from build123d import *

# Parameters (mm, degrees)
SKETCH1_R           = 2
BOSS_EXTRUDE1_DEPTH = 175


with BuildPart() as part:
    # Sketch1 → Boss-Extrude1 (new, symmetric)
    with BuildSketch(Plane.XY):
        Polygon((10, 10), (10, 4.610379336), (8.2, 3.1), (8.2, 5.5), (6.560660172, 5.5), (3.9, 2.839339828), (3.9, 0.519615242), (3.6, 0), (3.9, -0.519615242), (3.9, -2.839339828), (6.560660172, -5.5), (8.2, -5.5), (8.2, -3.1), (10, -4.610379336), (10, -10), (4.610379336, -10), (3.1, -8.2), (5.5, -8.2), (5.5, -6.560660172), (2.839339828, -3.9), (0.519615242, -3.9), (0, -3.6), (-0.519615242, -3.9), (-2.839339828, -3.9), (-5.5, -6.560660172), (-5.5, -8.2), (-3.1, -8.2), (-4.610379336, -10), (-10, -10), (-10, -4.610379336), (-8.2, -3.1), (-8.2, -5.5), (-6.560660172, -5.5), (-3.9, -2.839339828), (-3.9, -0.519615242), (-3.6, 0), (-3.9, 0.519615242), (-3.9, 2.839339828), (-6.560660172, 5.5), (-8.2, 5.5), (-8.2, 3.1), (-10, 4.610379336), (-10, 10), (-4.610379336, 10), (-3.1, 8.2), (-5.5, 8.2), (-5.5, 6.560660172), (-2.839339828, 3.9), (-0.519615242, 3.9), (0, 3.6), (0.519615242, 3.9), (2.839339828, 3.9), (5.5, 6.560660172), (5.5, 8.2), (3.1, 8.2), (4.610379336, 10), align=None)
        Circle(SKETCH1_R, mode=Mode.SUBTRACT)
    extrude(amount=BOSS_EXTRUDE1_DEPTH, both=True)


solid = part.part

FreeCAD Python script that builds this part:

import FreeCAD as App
import Part
import Sketcher
from FreeCAD import Vector
Q = App.Units.Quantity

doc = App.newDocument("Part")
body = doc.addObject("PartDesign::Body", "Body")

# Sketch on XY plane
sketch1 = doc.addObject("Sketcher::SketchObject", "Sketch")
body.addObject(sketch1)
sketch1.AttachmentSupport = (doc.XY_Plane, [""])
sketch1.MapMode = "FlatFace"
sketch1.addGeometry(Part.LineSegment(Vector(10, 4.6, 0), Vector(10, 10, 0)), False)
sketch1.addGeometry(Part.LineSegment(Vector(10, 10, 0), Vector(4.6, 10, 0)), False)
sketch1.addGeometry(Part.LineSegment(Vector(4.6, 10, 0), Vector(3.1, 8.2, 0)), False)
sketch1.addGeometry(Part.LineSegment(Vector(3.1, 8.2, 0), Vector(5.5, 8.2, 0)), False)
sketch1.addGeometry(Part.LineSegment(Vector(5.5, 8.2, 0), Vector(5.5, 6.6, 0)), False)
sketch1.addGeometry(Part.LineSegment(Vector(5.5, 6.6, 0), Vector(2.8, 3.9, 0)), False)
sketch1.addGeometry(Part.LineSegment(Vector(2.8, 3.9, 0), Vector(0.5, 3.9, 0)), False)
sketch1.addGeometry(Part.LineSegment(Vector(0.5, 3.9, 0), Vector(0, 3.6, 0)), False)
sketch1.addGeometry(Part.LineSegment(Vector(0, 3.6, 0), Vector(-0.5, 3.9, 0)), False)
sketch1.addGeometry(Part.LineSegment(Vector(-0.5, 3.9, 0), Vector(-2.8, 3.9, 0)), False)
sketch1.addGeometry(Part.LineSegment(Vector(-2.8, 3.9, 0), Vector(-5.5, 6.6, 0)), False)
sketch1.addGeometry(Part.LineSegment(Vector(-5.5, 6.6, 0), Vector(-5.5, 8.2, 0)), False)
sketch1.addGeometry(Part.LineSegment(Vector(-5.5, 8.2, 0), Vector(-3.1, 8.2, 0)), False)
sketch1.addGeometry(Part.LineSegment(Vector(-3.1, 8.2, 0), Vector(-4.6, 10, 0)), False)
sketch1.addGeometry(Part.LineSegment(Vector(-4.6, 10, 0), Vector(-10, 10, 0)), False)
sketch1.addGeometry(Part.LineSegment(Vector(-10, 10, 0), Vector(-10, 4.6, 0)), False)
sketch1.addGeometry(Part.LineSegment(Vector(-10, 4.6, 0), Vector(-8.2, 3.1, 0)), False)
sketch1.addGeometry(Part.LineSegment(Vector(-8.2, 3.1, 0), Vector(-8.2, 5.5, 0)), False)
sketch1.addGeometry(Part.LineSegment(Vector(-8.2, 5.5, 0), Vector(-6.6, 5.5, 0)), False)
sketch1.addGeometry(Part.LineSegment(Vector(-6.6, 5.5, 0), Vector(-3.9, 2.8, 0)), False)
sketch1.addGeometry(Part.LineSegment(Vector(-3.9, 2.8, 0), Vector(-3.9, 0.5, 0)), False)
sketch1.addGeometry(Part.LineSegment(Vector(-3.9, 0.5, 0), Vector(-3.6, 0, 0)), False)
sketch1.addGeometry(Part.LineSegment(Vector(-3.6, 0, 0), Vector(-3.9, -0.5, 0)), False)
sketch1.addGeometry(Part.LineSegment(Vector(-3.9, -0.5, 0), Vector(-3.9, -2.8, 0)), False)
sketch1.addGeometry(Part.LineSegment(Vector(-3.9, -2.8, 0), Vector(-6.6, -5.5, 0)), False)
sketch1.addGeometry(Part.LineSegment(Vector(-6.6, -5.5, 0), Vector(-8.2, -5.5, 0)), False)
sketch1.addGeometry(Part.LineSegment(Vector(-8.2, -5.5, 0), Vector(-8.2, -3.1, 0)), False)
sketch1.addGeometry(Part.LineSegment(Vector(-8.2, -3.1, 0), Vector(-10, -4.6, 0)), False)
sketch1.addGeometry(Part.LineSegment(Vector(-10, -4.6, 0), Vector(-10, -10, 0)), False)
sketch1.addGeometry(Part.LineSegment(Vector(-10, -10, 0), Vector(-4.6, -10, 0)), False)
sketch1.addGeometry(Part.LineSegment(Vector(-4.6, -10, 0), Vector(-3.1, -8.2, 0)), False)
sketch1.addGeometry(Part.LineSegment(Vector(-3.1, -8.2, 0), Vector(-5.5, -8.2, 0)), False)
sketch1.addGeometry(Part.LineSegment(Vector(-5.5, -8.2, 0), Vector(-5.5, -6.6, 0)), False)
sketch1.addGeometry(Part.LineSegment(Vector(-5.5, -6.6, 0), Vector(-2.8, -3.9, 0)), False)
sketch1.addGeometry(Part.LineSegment(Vector(-2.8, -3.9, 0), Vector(-0.5, -3.9, 0)), False)
sketch1.addGeometry(Part.LineSegment(Vector(-0.5, -3.9, 0), Vector(0, -3.6, 0)), False)
sketch1.addGeometry(Part.LineSegment(Vector(0, -3.6, 0), Vector(0.5, -3.9, 0)), False)
sketch1.addGeometry(Part.LineSegment(Vector(0.5, -3.9, 0), Vector(2.8, -3.9, 0)), False)
sketch1.addGeometry(Part.LineSegment(Vector(2.8, -3.9, 0), Vector(5.5, -6.6, 0)), False)
sketch1.addGeometry(Part.LineSegment(Vector(5.5, -6.6, 0), Vector(5.5, -8.2, 0)), False)
sketch1.addGeometry(Part.LineSegment(Vector(5.5, -8.2, 0), Vector(3.1, -8.2, 0)), False)
sketch1.addGeometry(Part.LineSegment(Vector(3.1, -8.2, 0), Vector(4.6, -10, 0)), False)
sketch1.addGeometry(Part.LineSegment(Vector(4.6, -10, 0), Vector(10, -10, 0)), False)
sketch1.addGeometry(Part.LineSegment(Vector(10, -10, 0), Vector(10, -4.6, 0)), False)
sketch1.addGeometry(Part.LineSegment(Vector(10, -4.6, 0), Vector(8.2, -3.1, 0)), False)
sketch1.addGeometry(Part.LineSegment(Vector(8.2, -3.1, 0), Vector(8.2, -5.5, 0)), False)
sketch1.addGeometry(Part.LineSegment(Vector(8.2, -5.5, 0), Vector(6.6, -5.5, 0)), False)
sketch1.addGeometry(Part.LineSegment(Vector(6.6, -5.5, 0), Vector(3.9, -2.8, 0)), False)
sketch1.addGeometry(Part.LineSegment(Vector(3.9, -2.8, 0), Vector(3.9, -0.5, 0)), False)
sketch1.addGeometry(Part.LineSegment(Vector(3.9, -0.5, 0), Vector(3.6, 0, 0)), False)
sketch1.addGeometry(Part.LineSegment(Vector(3.6, 0, 0), Vector(3.9, 0.5, 0)), False)
sketch1.addGeometry(Part.LineSegment(Vector(3.9, 0.5, 0), Vector(3.9, 2.8, 0)), False)
sketch1.addGeometry(Part.LineSegment(Vector(3.9, 2.8, 0), Vector(6.6, 5.5, 0)), False)
sketch1.addGeometry(Part.LineSegment(Vector(6.6, 5.5, 0), Vector(8.2, 5.5, 0)), False)
sketch1.addGeometry(Part.LineSegment(Vector(8.2, 5.5, 0), Vector(8.2, 3.1, 0)), False)
sketch1.addGeometry(Part.LineSegment(Vector(8.2, 3.1, 0), Vector(10, 4.6, 0)), False)
sketch1.addGeometry(Part.Circle(Vector(0, 0, 0), Vector(0, 0, 1), 2), False)
sketch1.addConstraint(Sketcher.Constraint("Coincident", 0, 2, 1, 1))
sketch1.addConstraint(Sketcher.Constraint("Coincident", 1, 2, 2, 1))
sketch1.addConstraint(Sketcher.Constraint("Coincident", 2, 2, 3, 1))
sketch1.addConstraint(Sketcher.Constraint("Coincident", 3, 2, 4, 1))
sketch1.addConstraint(Sketcher.Constraint("Coincident", 4, 2, 5, 1))
sketch1.addConstraint(Sketcher.Constraint("Coincident", 5, 2, 6, 1))
sketch1.addConstraint(Sketcher.Constraint("Coincident", 6, 2, 7, 1))
sketch1.addConstraint(Sketcher.Constraint("Coincident", 7, 2, 8, 1))
sketch1.addConstraint(Sketcher.Constraint("Coincident", 8, 2, 9, 1))
sketch1.addConstraint(Sketcher.Constraint("Coincident", 9, 2, 10, 1))
sketch1.addConstraint(Sketcher.Constraint("Coincident", 10, 2, 11, 1))
sketch1.addConstraint(Sketcher.Constraint("Coincident", 11, 2, 12, 1))
sketch1.addConstraint(Sketcher.Constraint("Coincident", 12, 2, 13, 1))
sketch1.addConstraint(Sketcher.Constraint("Coincident", 13, 2, 14, 1))
sketch1.addConstraint(Sketcher.Constraint("Coincident", 14, 2, 15, 1))
sketch1.addConstraint(Sketcher.Constraint("Coincident", 15, 2, 16, 1))
sketch1.addConstraint(Sketcher.Constraint("Coincident", 16, 2, 17, 1))
sketch1.addConstraint(Sketcher.Constraint("Coincident", 17, 2, 18, 1))
sketch1.addConstraint(Sketcher.Constraint("Coincident", 18, 2, 19, 1))
sketch1.addConstraint(Sketcher.Constraint("Coincident", 19, 2, 20, 1))
sketch1.addConstraint(Sketcher.Constraint("Coincident", 20, 2, 21, 1))
sketch1.addConstraint(Sketcher.Constraint("Coincident", 21, 2, 22, 1))
sketch1.addConstraint(Sketcher.Constraint("Coincident", 22, 2, 23, 1))
sketch1.addConstraint(Sketcher.Constraint("Coincident", 23, 2, 24, 1))
sketch1.addConstraint(Sketcher.Constraint("Coincident", 24, 2, 25, 1))
sketch1.addConstraint(Sketcher.Constraint("Coincident", 25, 2, 26, 1))
sketch1.addConstraint(Sketcher.Constraint("Coincident", 26, 2, 27, 1))
sketch1.addConstraint(Sketcher.Constraint("Coincident", 27, 2, 28, 1))
sketch1.addConstraint(Sketcher.Constraint("Coincident", 28, 2, 29, 1))
sketch1.addConstraint(Sketcher.Constraint("Coincident", 29, 2, 30, 1))
sketch1.addConstraint(Sketcher.Constraint("Coincident", 30, 2, 31, 1))
sketch1.addConstraint(Sketcher.Constraint("Coincident", 31, 2, 32, 1))
sketch1.addConstraint(Sketcher.Constraint("Coincident", 32, 2, 33, 1))
sketch1.addConstraint(Sketcher.Constraint("Coincident", 33, 2, 34, 1))
sketch1.addConstraint(Sketcher.Constraint("Coincident", 34, 2, 35, 1))
sketch1.addConstraint(Sketcher.Constraint("Coincident", 35, 2, 36, 1))
sketch1.addConstraint(Sketcher.Constraint("Coincident", 36, 2, 37, 1))
sketch1.addConstraint(Sketcher.Constraint("Coincident", 37, 2, 38, 1))
sketch1.addConstraint(Sketcher.Constraint("Coincident", 38, 2, 39, 1))
sketch1.addConstraint(Sketcher.Constraint("Coincident", 39, 2, 40, 1))
sketch1.addConstraint(Sketcher.Constraint("Coincident", 40, 2, 41, 1))
sketch1.addConstraint(Sketcher.Constraint("Coincident", 41, 2, 42, 1))
sketch1.addConstraint(Sketcher.Constraint("Coincident", 42, 2, 43, 1))
sketch1.addConstraint(Sketcher.Constraint("Coincident", 43, 2, 44, 1))
sketch1.addConstraint(Sketcher.Constraint("Coincident", 44, 2, 45, 1))
sketch1.addConstraint(Sketcher.Constraint("Coincident", 45, 2, 46, 1))
sketch1.addConstraint(Sketcher.Constraint("Coincident", 46, 2, 47, 1))
sketch1.addConstraint(Sketcher.Constraint("Coincident", 47, 2, 48, 1))
sketch1.addConstraint(Sketcher.Constraint("Coincident", 48, 2, 49, 1))
sketch1.addConstraint(Sketcher.Constraint("Coincident", 49, 2, 50, 1))
sketch1.addConstraint(Sketcher.Constraint("Coincident", 50, 2, 51, 1))
sketch1.addConstraint(Sketcher.Constraint("Coincident", 51, 2, 52, 1))
sketch1.addConstraint(Sketcher.Constraint("Coincident", 52, 2, 53, 1))
sketch1.addConstraint(Sketcher.Constraint("Coincident", 53, 2, 54, 1))
sketch1.addConstraint(Sketcher.Constraint("Coincident", 54, 2, 55, 1))
sketch1.addConstraint(Sketcher.Constraint("Coincident", 55, 2, 0, 1))
sketch1.addConstraint(Sketcher.Constraint("Vertical", 0))
sketch1.addConstraint(Sketcher.Constraint("Horizontal", 1))
sketch1.addConstraint(Sketcher.Constraint("Horizontal", 3))
sketch1.addConstraint(Sketcher.Constraint("Vertical", 4))
sketch1.addConstraint(Sketcher.Constraint("Horizontal", 6))
sketch1.addConstraint(Sketcher.Constraint("Horizontal", 9))
sketch1.addConstraint(Sketcher.Constraint("Vertical", 11))
sketch1.addConstraint(Sketcher.Constraint("Horizontal", 12))
sketch1.addConstraint(Sketcher.Constraint("Horizontal", 14))
sketch1.addConstraint(Sketcher.Constraint("Vertical", 15))
sketch1.addConstraint(Sketcher.Constraint("Vertical", 17))
sketch1.addConstraint(Sketcher.Constraint("Horizontal", 18))
sketch1.addConstraint(Sketcher.Constraint("Vertical", 20))
sketch1.addConstraint(Sketcher.Constraint("Vertical", 23))
sketch1.addConstraint(Sketcher.Constraint("Horizontal", 25))
sketch1.addConstraint(Sketcher.Constraint("Vertical", 26))
sketch1.addConstraint(Sketcher.Constraint("Vertical", 28))
sketch1.addConstraint(Sketcher.Constraint("Horizontal", 29))
sketch1.addConstraint(Sketcher.Constraint("Horizontal", 31))
sketch1.addConstraint(Sketcher.Constraint("Vertical", 32))
sketch1.addConstraint(Sketcher.Constraint("Horizontal", 34))
sketch1.addConstraint(Sketcher.Constraint("Horizontal", 37))
sketch1.addConstraint(Sketcher.Constraint("Vertical", 39))
sketch1.addConstraint(Sketcher.Constraint("Horizontal", 40))
sketch1.addConstraint(Sketcher.Constraint("Horizontal", 42))
sketch1.addConstraint(Sketcher.Constraint("Vertical", 43))
sketch1.addConstraint(Sketcher.Constraint("Vertical", 45))
sketch1.addConstraint(Sketcher.Constraint("Horizontal", 46))
sketch1.addConstraint(Sketcher.Constraint("Vertical", 48))
sketch1.addConstraint(Sketcher.Constraint("Vertical", 51))
sketch1.addConstraint(Sketcher.Constraint("Horizontal", 53))
sketch1.addConstraint(Sketcher.Constraint("Vertical", 54))
sketch1.addConstraint(Sketcher.Constraint("Coincident", 56, 3, -1, 1))
sketch1.addConstraint(Sketcher.Constraint("Symmetric", 0, 2, 28, 2, -1, 1))
sketch1.addConstraint(Sketcher.Constraint("Symmetric", 2, 2, 30, 2, -1, 1))
sketch1.addConstraint(Sketcher.Constraint("Symmetric", 4, 2, 32, 2, -1, 1))
sketch1.addConstraint(Sketcher.Constraint("Symmetric", 5, 2, 33, 2, -1, 1))
sketch1.addConstraint(Sketcher.Constraint("Symmetric", 7, 2, 35, 2, -1, 1))
sketch1.addConstraint(Sketcher.Constraint("Symmetric", 8, 2, 36, 2, -1, 1))
sketch1.addConstraint(Sketcher.Constraint("Symmetric", 10, 2, 38, 2, -1, 1))
sketch1.addConstraint(Sketcher.Constraint("Symmetric", 12, 2, 40, 2, -1, 1))
sketch1.addConstraint(Sketcher.Constraint("Symmetric", 13, 2, 41, 2, -1, 1))
sketch1.addConstraint(Sketcher.Constraint("Symmetric", 15, 2, 43, 2, -1, 1))
sketch1.addConstraint(Sketcher.Constraint("Symmetric", 16, 2, 44, 2, -1, 1))
sketch1.addConstraint(Sketcher.Constraint("Symmetric", 18, 2, 46, 2, -1, 1))
sketch1.addConstraint(Sketcher.Constraint("Symmetric", 19, 2, 47, 2, -1, 1))
sketch1.addConstraint(Sketcher.Constraint("Symmetric", 21, 2, 49, 2, -1, 1))
sketch1.addConstraint(Sketcher.Constraint("Symmetric", 22, 2, 50, 2, -1, 1))
sketch1.addConstraint(Sketcher.Constraint("Symmetric", 24, 2, 52, 2, -1, 1))
sketch1.addConstraint(Sketcher.Constraint("Symmetric", 26, 2, 54, 2, -1, 1))
sketch1.addConstraint(Sketcher.Constraint("Symmetric", 6, 2, 8, 2, -2))
sketch1.addConstraint(Sketcher.Constraint("Symmetric", 4, 2, 10, 2, -2))
sketch1.addConstraint(Sketcher.Constraint("Symmetric", 2, 2, 12, 2, -2))
sketch1.addConstraint(Sketcher.Constraint("Symmetric", 1, 2, 13, 2, -2))
sketch1.addConstraint(Sketcher.Constraint("Symmetric", 27, 2, 43, 2, -2))
sketch1.addConstraint(Sketcher.Constraint("Symmetric", 26, 2, 44, 2, -2))
sketch1.addConstraint(Sketcher.Constraint("Symmetric", 24, 2, 46, 2, -2))
sketch1.addConstraint(Sketcher.Constraint("Symmetric", 23, 2, 47, 2, -2))
sketch1.addConstraint(Sketcher.Constraint("PointOnObject", 7, 2, -2))
sketch1.addConstraint(Sketcher.Constraint("PointOnObject", 21, 2, -1))
sketch1.addConstraint(Sketcher.Constraint("Perpendicular", 5, 10))
sketch1.addConstraint(Sketcher.Constraint("Perpendicular", 2, 16))
sketch1.addConstraint(Sketcher.Constraint("Parallel", 10, 19))
sketch1.addConstraint(Sketcher.Constraint("Perpendicular", 7, 21))
sketch1.addConstraint(Sketcher.Constraint("Perpendicular", 8, 22))
sketch1.addConstraint(Sketcher.Constraint("Perpendicular", 19, 24))
sketch1.addConstraint(Sketcher.Constraint("Perpendicular", 16, 30))
sketch1.addConstraint(Sketcher.Constraint("Perpendicular", 21, 35))
sketch1.addConstraint(Sketcher.Constraint("Perpendicular", 33, 38))
sketch1.addConstraint(Sketcher.Constraint("Perpendicular", 35, 49))
sketch1.addConstraint(Sketcher.Constraint("Perpendicular", 47, 52))
sketch1.addConstraint(Sketcher.Constraint("Perpendicular", 41, 55))
sketch1.addConstraint(Sketcher.Constraint("Equal", 42, 0))
sketch1.addConstraint(Sketcher.Constraint("Equal", 53, 4))
sketch1.addConstraint(Sketcher.Constraint("Equal", 40, 17))
sketch1.addConstraint(Sketcher.Constraint("Equal", 37, 20))
sketch1.addConstraint(Sketcher.Constraint("Equal", 13, 16))
sketch1.addConstraint(Sketcher.Constraint("Equal", 10, 19))
sketch1.addConstraint(Sketcher.Constraint("Equal", 8, 21))
sketch1.addConstraint(Sketcher.Constraint("Diameter", 56, 4.0))
sketch1.addConstraint(Sketcher.Constraint("Angle", 2, Q("-130 deg")))
sketch1.addConstraint(Sketcher.Constraint("Angle", 7, Q("-150 deg")))
sketch1.addConstraint(Sketcher.Constraint("DistanceX", 3, 1, 3, 2, 2.4))
sketch1.addConstraint(Sketcher.Constraint("DistanceX", -1, 1, 0, 2, 10.0))
sketch1.addConstraint(Sketcher.Constraint("Distance", 7, 0.6))
sketch1.addConstraint(Sketcher.Constraint("DistanceX", -1, 1, 2, 2, 3.1))
sketch1.addConstraint(Sketcher.Constraint("DistanceY", -1, 1, 2, 2, 8.2))
sketch1.addConstraint(Sketcher.Constraint("DistanceY", -1, 1, 5, 2, 3.9))
sketch1.addConstraint(Sketcher.Constraint("DistanceX", 18, 1, 18, 2, 1.63934))
pad1 = doc.addObject("PartDesign::Pad", "Pad")
body.addObject(pad1)
pad1.Profile = sketch1
pad1.Length = 350
pad1.Midplane = True

doc.recompute()
